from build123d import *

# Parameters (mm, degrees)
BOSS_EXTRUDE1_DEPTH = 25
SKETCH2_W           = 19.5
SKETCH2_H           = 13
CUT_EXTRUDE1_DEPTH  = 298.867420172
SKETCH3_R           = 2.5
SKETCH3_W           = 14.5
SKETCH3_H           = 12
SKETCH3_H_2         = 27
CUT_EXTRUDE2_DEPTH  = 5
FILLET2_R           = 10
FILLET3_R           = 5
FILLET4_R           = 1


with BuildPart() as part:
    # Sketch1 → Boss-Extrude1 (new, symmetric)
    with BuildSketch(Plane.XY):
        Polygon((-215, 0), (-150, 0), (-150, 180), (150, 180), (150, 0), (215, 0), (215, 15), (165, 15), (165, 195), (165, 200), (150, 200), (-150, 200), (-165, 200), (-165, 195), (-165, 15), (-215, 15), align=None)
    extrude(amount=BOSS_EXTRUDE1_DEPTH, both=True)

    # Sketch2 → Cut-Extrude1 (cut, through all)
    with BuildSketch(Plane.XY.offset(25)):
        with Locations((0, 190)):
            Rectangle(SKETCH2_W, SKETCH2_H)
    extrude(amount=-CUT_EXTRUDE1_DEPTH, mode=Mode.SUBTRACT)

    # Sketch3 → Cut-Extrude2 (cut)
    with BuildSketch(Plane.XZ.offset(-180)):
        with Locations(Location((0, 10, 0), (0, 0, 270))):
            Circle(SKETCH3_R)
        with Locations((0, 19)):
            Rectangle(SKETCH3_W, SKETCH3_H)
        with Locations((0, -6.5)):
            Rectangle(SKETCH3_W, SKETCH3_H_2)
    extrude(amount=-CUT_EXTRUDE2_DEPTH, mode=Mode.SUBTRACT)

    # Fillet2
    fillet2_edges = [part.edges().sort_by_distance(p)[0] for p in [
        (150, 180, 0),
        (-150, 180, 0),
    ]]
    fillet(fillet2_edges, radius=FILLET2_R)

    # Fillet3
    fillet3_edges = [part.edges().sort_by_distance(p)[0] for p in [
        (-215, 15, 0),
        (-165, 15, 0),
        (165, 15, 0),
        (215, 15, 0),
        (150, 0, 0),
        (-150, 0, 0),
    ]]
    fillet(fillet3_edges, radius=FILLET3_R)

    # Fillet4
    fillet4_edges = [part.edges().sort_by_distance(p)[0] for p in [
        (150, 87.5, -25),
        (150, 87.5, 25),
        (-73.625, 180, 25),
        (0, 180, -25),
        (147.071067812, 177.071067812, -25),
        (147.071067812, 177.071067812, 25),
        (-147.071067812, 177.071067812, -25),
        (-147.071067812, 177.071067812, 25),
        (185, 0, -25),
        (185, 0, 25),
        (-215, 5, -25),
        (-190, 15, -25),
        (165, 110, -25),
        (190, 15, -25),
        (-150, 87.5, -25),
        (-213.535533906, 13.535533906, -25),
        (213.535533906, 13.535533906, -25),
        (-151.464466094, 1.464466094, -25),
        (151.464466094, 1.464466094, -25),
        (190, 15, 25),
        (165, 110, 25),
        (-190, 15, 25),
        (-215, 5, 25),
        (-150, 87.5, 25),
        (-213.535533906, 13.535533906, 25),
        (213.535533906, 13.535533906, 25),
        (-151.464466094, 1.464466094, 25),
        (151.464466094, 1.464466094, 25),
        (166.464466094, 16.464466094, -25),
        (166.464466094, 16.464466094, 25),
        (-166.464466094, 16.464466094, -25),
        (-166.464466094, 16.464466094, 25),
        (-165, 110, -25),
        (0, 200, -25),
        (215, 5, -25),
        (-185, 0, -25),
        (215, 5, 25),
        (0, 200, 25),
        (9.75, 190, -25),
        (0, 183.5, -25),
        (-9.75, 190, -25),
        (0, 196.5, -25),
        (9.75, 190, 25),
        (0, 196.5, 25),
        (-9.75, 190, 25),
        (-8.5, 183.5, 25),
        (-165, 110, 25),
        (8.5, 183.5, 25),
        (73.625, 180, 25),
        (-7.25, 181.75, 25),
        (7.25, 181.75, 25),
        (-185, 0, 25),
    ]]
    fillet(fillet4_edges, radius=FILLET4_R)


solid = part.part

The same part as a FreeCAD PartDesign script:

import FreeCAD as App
import Part
import Sketcher
from FreeCAD import Vector


def edges_at(feature, points):
    """Names of the edges that pass closest to the given points."""
    edges = feature.Shape.Edges
    near = lambda p: min(range(len(edges)), key=lambda i: edges[i].distToShape(Part.Vertex(*p))[0])
    return sorted({f"Edge{near(p) + 1}" for p in points})

doc = App.newDocument("Part")
body = doc.addObject("PartDesign::Body", "Body")

sketch1 = body.newObject("Sketcher::SketchObject", "Sketch")
sketch1.AttachmentSupport = (doc.getObject("XY_Plane"), [""])
sketch1.MapMode = "FlatFace"
sketch1.addGeometry(Part.LineSegment(Vector(-215, 0, 0), Vector(-150, 0, 0)), False)
sketch1.addGeometry(Part.LineSegment(Vector(-150, 0, 0), Vector(-150, 180, 0)), False)
sketch1.addGeometry(Part.LineSegment(Vector(-150, 180, 0), Vector(150, 180, 0)), False)
sketch1.addGeometry(Part.LineSegment(Vector(150, 180, 0), Vector(150, 0, 0)), False)
sketch1.addGeometry(Part.LineSegment(Vector(150, 0, 0), Vector(215, 0, 0)), False)
sketch1.addGeometry(Part.LineSegment(Vector(215, 0, 0), Vector(215, 15, 0)), False)
sketch1.addGeometry(Part.LineSegment(Vector(215, 15, 0), Vector(165, 15, 0)), False)
sketch1.addGeometry(Part.LineSegment(Vector(165, 15, 0), Vector(165, 200, 0)), False)
sketch1.addGeometry(Part.LineSegment(Vector(165, 200, 0), Vector(-165, 200, 0)), False)
sketch1.addGeometry(Part.LineSegment(Vector(-165, 200, 0), Vector(-165, 15, 0)), False)
sketch1.addGeometry(Part.LineSegment(Vector(-165, 15, 0), Vector(-215, 15, 0)), False)
sketch1.addGeometry(Part.LineSegment(Vector(-215, 15, 0), Vector(-215, 0, 0)), False)
sketch1.addConstraint(Sketcher.Constraint("Coincident", 0, 2, 1, 1))
sketch1.addConstraint(Sketcher.Constraint("Coincident", 1, 2, 2, 1))
sketch1.addConstraint(Sketcher.Constraint("Coincident", 2, 2, 3, 1))
sketch1.addConstraint(Sketcher.Constraint("Coincident", 3, 2, 4, 1))
sketch1.addConstraint(Sketcher.Constraint("Coincident", 4, 2, 5, 1))
sketch1.addConstraint(Sketcher.Constraint("Coincident", 5, 2, 6, 1))
sketch1.addConstraint(Sketcher.Constraint("Coincident", 6, 2, 7, 1))
sketch1.addConstraint(Sketcher.Constraint("Coincident", 7, 2, 8, 1))
sketch1.addConstraint(Sketcher.Constraint("Coincident", 8, 2, 9, 1))
sketch1.addConstraint(Sketcher.Constraint("Coincident", 9, 2, 10, 1))
sketch1.addConstraint(Sketcher.Constraint("Coincident", 10, 2, 11, 1))
sketch1.addConstraint(Sketcher.Constraint("Coincident", 11, 2, 0, 1))
sketch1.addConstraint(Sketcher.Constraint("Horizontal", 0))
sketch1.addConstraint(Sketcher.Constraint("Vertical", 1))
sketch1.addConstraint(Sketcher.Constraint("Horizontal", 2))
sketch1.addConstraint(Sketcher.Constraint("Vertical", 3))
sketch1.addConstraint(Sketcher.Constraint("Horizontal", 4))
sketch1.addConstraint(Sketcher.Constraint("Vertical", 5))
sketch1.addConstraint(Sketcher.Constraint("Horizontal", 6))
sketch1.addConstraint(Sketcher.Constraint("Vertical", 7))
sketch1.addConstraint(Sketcher.Constraint("Horizontal", 8))
sketch1.addConstraint(Sketcher.Constraint("Vertical", 9))
sketch1.addConstraint(Sketcher.Constraint("Horizontal", 10))
sketch1.addConstraint(Sketcher.Constraint("Vertical", 11))
sketch1.addConstraint(Sketcher.Constraint("Symmetric", 0, 2, 3, 2, -1, 1))
sketch1.addConstraint(Sketcher.Constraint("Symmetric", 6, 2, 9, 2, -2))
sketch1.addConstraint(Sketcher.Constraint("Symmetric", 4, 2, 11, 2, -2))
sketch1.addConstraint(Sketcher.Constraint("DistanceX", 0, 1, 0, 2, 65.0))
sketch1.addConstraint(Sketcher.Constraint("DistanceX", 2, 1, 2, 2, 300.0))
sketch1.addConstraint(Sketcher.Constraint("DistanceX", 6, 2, 6, 1, 50.0))
sketch1.addConstraint(Sketcher.Constraint("DistanceY", 1, 1, 1, 2, 180.0))
sketch1.addConstraint(Sketcher.Constraint("DistanceY", 5, 1, 5, 2, 15.0))
sketch1.addConstraint(Sketcher.Constraint("DistanceY", 7, 1, 7, 2, 185.0))
pad1 = body.newObject("PartDesign::Pad", "Pad")
pad1.Profile = sketch1
pad1.Length = 50
pad1.Midplane = True

sketch2 = body.newObject("Sketcher::SketchObject", "Sketch001")
sketch2.AttachmentSupport = (doc.getObject("XY_Plane"), [""])
sketch2.MapMode = "FlatFace"
sketch2.AttachmentOffset = App.Placement(Vector(0, 0, 25), App.Rotation())
sketch2.addGeometry(Part.LineSegment(Vector(-10, 196, 0), Vector(-10, 184, 0)), False)
sketch2.addGeometry(Part.LineSegment(Vector(-10, 184, 0), Vector(10, 184, 0)), False)
sketch2.addGeometry(Part.LineSegment(Vector(10, 184, 0), Vector(10, 196, 0)), False)
sketch2.addGeometry(Part.LineSegment(Vector(10, 196, 0), Vector(-10, 196, 0)), False)
sketch2.addConstraint(Sketcher.Constraint("Coincident", 0, 2, 1, 1))
sketch2.addConstraint(Sketcher.Constraint("Coincident", 1, 2, 2, 1))
sketch2.addConstraint(Sketcher.Constraint("Coincident", 2, 2, 3, 1))
sketch2.addConstraint(Sketcher.Constraint("Coincident", 3, 2, 0, 1))
sketch2.addConstraint(Sketcher.Constraint("Vertical", 0))
sketch2.addConstraint(Sketcher.Constraint("Horizontal", 1))
sketch2.addConstraint(Sketcher.Constraint("Vertical", 2))
sketch2.addConstraint(Sketcher.Constraint("Horizontal", 3))
sketch2.addConstraint(Sketcher.Constraint("DistanceY", 0, 2, 0, 1, 13.0))
sketch2.addConstraint(Sketcher.Constraint("DistanceX", 1, 1, 1, 2, 19.5))
sketch2.addConstraint(Sketcher.Constraint("DistanceY", -1, 1, 0, 2, 183.5))
sketch2.addConstraint(Sketcher.Constraint("DistanceX", 0, 2, -1, 1, 9.75))
pocket1 = body.newObject("PartDesign::Pocket", "Pocket")
pocket1.Profile = sketch2
pocket1.Type = "ThroughAll"

sketch3 = body.newObject("Sketcher::SketchObject", "Sketch002")
sketch3.AttachmentSupport = (doc.getObject("XZ_Plane"), [""])
sketch3.MapMode = "FlatFace"
sketch3.AttachmentOffset = App.Placement(Vector(0, 0, -180), App.Rotation())
sketch3.addGeometry(Part.Circle(Vector(0, 10, 0), Vector(0, 0, 1), 2.5), False)
sketch3.addGeometry(Part.LineSegment(Vector(-7.2, 25, 0), Vector(-7.2, 13, 0)), False)
sketch3.addGeometry(Part.LineSegment(Vector(-7.2, 13, 0), Vector(7.2, 13, 0)), False)
sketch3.addGeometry(Part.LineSegment(Vector(7.2, 13, 0), Vector(7.2, 25, 0)), False)
sketch3.addGeometry(Part.LineSegment(Vector(7.2, 25, 0), Vector(-7.2, 25, 0)), False)
sketch3.addGeometry(Part.LineSegment(Vector(-7.2, 7, 0), Vector(-7.2, -20, 0)), False)
sketch3.addGeometry(Part.LineSegment(Vector(-7.2, -20, 0), Vector(7.2, -20, 0)), False)
sketch3.addGeometry(Part.LineSegment(Vector(7.2, -20, 0), Vector(7.2, 7, 0)), False)
sketch3.addGeometry(Part.LineSegment(Vector(7.2, 7, 0), Vector(-7.2, 7, 0)), False)
sketch3.addConstraint(Sketcher.Constraint("Coincident", 1, 2, 2, 1))
sketch3.addConstraint(Sketcher.Constraint("Coincident", 2, 2, 3, 1))
sketch3.addConstraint(Sketcher.Constraint("Coincident", 3, 2, 4, 1))
sketch3.addConstraint(Sketcher.Constraint("Coincident", 4, 2, 1, 1))
sketch3.addConstraint(Sketcher.Constraint("Coincident", 5, 2, 6, 1))
sketch3.addConstraint(Sketcher.Constraint("Coincident", 6, 2, 7, 1))
sketch3.addConstraint(Sketcher.Constraint("Coincident", 7, 2, 8, 1))
sketch3.addConstraint(Sketcher.Constraint("Coincident", 8, 2, 5, 1))
sketch3.addConstraint(Sketcher.Constraint("Vertical", 1))
sketch3.addConstraint(Sketcher.Constraint("Horizontal", 2))
sketch3.addConstraint(Sketcher.Constraint("Vertical", 3))
sketch3.addConstraint(Sketcher.Constraint("Horizontal", 4))
sketch3.addConstraint(Sketcher.Constraint("Vertical", 5))
sketch3.addConstraint(Sketcher.Constraint("Horizontal", 6))
sketch3.addConstraint(Sketcher.Constraint("Vertical", 7))
sketch3.addConstraint(Sketcher.Constraint("Horizontal", 8))
sketch3.addConstraint(Sketcher.Constraint("PointOnObject", 0, 3, -2))
sketch3.addConstraint(Sketcher.Constraint("Vertical", 4, 2, 5, 2))
sketch3.addConstraint(Sketcher.Constraint("Vertical", 3, 2, 6, 2))
sketch3.addConstraint(Sketcher.Constraint("Diameter", 0, 5.0))
sketch3.addConstraint(Sketcher.Constraint("DistanceY", 1, 2, 1, 1, 12.0))
sketch3.addConstraint(Sketcher.Constraint("DistanceY", 5, 2, 5, 1, 27.0))
sketch3.addConstraint(Sketcher.Constraint("DistanceX", 2, 1, 2, 2, 14.5))
sketch3.addConstraint(Sketcher.Constraint("DistanceY", -1, 1, 0, 3, 10.0))
sketch3.addConstraint(Sketcher.Constraint("DistanceY", -1, 1, 1, 2, 13.0))
sketch3.addConstraint(Sketcher.Constraint("DistanceY", 5, 2, -1, 1, 20.0))
sketch3.addConstraint(Sketcher.Constraint("DistanceX", 1, 2, -1, 1, 7.25))
pocket2 = body.newObject("PartDesign::Pocket", "Pocket001")
pocket2.Profile = sketch3
pocket2.Length = 5
doc.recompute()

fillet = body.newObject("PartDesign::Fillet", "Fillet")
fillet.Base = (pocket2, edges_at(pocket2, [(150, 180, 0), (-150, 180, 0)]))
fillet.Radius = 10
doc.recompute()

fillet2 = body.newObject("PartDesign::Fillet", "Fillet001")
fillet2.Base = (fillet, edges_at(fillet, [
    (-215, 15, 0),
    (-165, 15, 0),
    (165, 15, 0),
    (215, 15, 0),
    (150, 0, 0),
    (-150, 0, 0),
]))
fillet2.Radius = 5
doc.recompute()

fillet3 = body.newObject("PartDesign::Fillet", "Fillet002")
fillet3.Base = (fillet2, edges_at(fillet2, [
    (150, 87.5, -25),
    (150, 87.5, 25),
    (-73.625, 180, 25),
    (0, 180, -25),
    (147.071, 177.071, -25),
    (147.071, 177.071, 25),
    (-147.071, 177.071, -25),
    (-147.071, 177.071, 25),
    (185, 0, -25),
    (185, 0, 25),
    (-215, 5, -25),
    (-190, 15, -25),
    (165, 110, -25),
    (190, 15, -25),
    (-150, 87.5, -25),
    (-213.536, 13.536, -25),
    (213.536, 13.536, -25),
    (-151.464, 1.464, -25),
    (151.464, 1.464, -25),
    (190, 15, 25),
    (165, 110, 25),
    (-190, 15, 25),
    (-215, 5, 25),
    (-150, 87.5, 25),
    (-213.536, 13.536, 25),
    (213.536, 13.536, 25),
    (-151.464, 1.464, 25),
    (151.464, 1.464, 25),
    (166.464, 16.464, -25),
    (166.464, 16.464, 25),
    (-166.464, 16.464, -25),
    (-166.464, 16.464, 25),
    (-165, 110, -25),
    (0, 200, -25),
    (215, 5, -25),
    (-185, 0, -25),
    (215, 5, 25),
    (0, 200, 25),
    (9.75, 190, -25),
    (0, 183.5, -25),
    (-9.75, 190, -25),
    (0, 196.5, -25),
    (9.75, 190, 25),
    (0, 196.5, 25),
    (-9.75, 190, 25),
    (-8.5, 183.5, 25),
    (-165, 110, 25),
    (8.5, 183.5, 25),
    (73.625, 180, 25),
    (-7.25, 181.75, 25),
    (7.25, 181.75, 25),
    (-185, 0, 25),
]))
fillet3.Radius = 1

doc.recompute()
